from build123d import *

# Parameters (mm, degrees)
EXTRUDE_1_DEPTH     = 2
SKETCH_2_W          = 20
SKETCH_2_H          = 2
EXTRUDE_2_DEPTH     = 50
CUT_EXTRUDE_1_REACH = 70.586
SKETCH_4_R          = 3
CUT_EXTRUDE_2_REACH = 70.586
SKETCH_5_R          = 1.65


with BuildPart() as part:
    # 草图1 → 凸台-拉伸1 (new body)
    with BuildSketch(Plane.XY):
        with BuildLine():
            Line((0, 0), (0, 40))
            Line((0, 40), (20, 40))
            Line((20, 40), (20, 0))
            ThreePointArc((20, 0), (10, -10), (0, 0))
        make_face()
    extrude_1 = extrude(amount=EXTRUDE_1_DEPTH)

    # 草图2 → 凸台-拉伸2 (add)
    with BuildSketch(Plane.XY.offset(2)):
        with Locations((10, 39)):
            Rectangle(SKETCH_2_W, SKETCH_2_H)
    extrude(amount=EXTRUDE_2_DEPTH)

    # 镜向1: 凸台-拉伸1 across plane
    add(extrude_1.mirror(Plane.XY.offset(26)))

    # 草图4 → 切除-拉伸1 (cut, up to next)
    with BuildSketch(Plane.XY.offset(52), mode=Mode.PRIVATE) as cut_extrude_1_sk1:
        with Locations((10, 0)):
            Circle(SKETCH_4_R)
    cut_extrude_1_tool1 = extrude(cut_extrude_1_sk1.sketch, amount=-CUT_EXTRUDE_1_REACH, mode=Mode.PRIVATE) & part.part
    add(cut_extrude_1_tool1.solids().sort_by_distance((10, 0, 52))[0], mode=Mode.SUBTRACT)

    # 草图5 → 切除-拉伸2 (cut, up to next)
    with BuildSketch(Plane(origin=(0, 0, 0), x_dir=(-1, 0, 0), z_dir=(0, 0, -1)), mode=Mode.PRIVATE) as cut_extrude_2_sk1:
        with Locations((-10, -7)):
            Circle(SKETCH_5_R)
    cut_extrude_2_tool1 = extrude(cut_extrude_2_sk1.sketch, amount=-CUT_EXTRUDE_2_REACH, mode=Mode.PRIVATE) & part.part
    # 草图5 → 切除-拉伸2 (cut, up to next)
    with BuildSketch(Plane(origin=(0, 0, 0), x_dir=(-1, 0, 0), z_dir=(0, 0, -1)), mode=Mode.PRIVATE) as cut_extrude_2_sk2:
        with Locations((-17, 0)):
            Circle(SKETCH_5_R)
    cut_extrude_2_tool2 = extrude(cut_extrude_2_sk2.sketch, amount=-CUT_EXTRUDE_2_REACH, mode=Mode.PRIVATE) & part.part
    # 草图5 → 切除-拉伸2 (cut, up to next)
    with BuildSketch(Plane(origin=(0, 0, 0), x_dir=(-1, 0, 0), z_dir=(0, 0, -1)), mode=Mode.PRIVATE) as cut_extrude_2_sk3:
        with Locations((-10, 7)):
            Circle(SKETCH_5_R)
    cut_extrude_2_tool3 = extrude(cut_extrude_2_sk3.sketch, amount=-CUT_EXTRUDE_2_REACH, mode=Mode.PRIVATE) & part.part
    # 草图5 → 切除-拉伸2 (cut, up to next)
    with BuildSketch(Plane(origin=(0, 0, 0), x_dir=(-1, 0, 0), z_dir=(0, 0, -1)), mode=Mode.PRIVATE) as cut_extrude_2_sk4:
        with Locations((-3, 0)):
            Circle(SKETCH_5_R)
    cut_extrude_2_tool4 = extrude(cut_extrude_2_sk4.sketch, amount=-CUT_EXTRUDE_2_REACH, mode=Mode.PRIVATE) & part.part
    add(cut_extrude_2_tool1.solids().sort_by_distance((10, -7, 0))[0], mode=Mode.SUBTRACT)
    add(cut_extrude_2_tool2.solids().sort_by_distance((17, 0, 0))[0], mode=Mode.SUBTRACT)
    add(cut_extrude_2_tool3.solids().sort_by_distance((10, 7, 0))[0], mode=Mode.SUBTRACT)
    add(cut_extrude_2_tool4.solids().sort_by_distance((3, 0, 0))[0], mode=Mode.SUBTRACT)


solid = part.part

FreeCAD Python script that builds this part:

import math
import FreeCAD as App
import Part
import Sketcher
from FreeCAD import Vector


def add_polygon(sketch, points):
    """Adds a closed chain of lines whose ends are joined by coincident constraints."""
    first, n = sketch.GeometryCount, len(points)
    for a, b in zip(points, points[1:] + points[:1]):
        sketch.addGeometry(Part.LineSegment(App.Vector(*a, 0), App.Vector(*b, 0)), False)
    for i in range(n):
        sketch.addConstraint(Sketcher.Constraint("Coincident", first + i, 2, first + (i + 1) % n, 1))

doc = App.newDocument("Part")
body = doc.addObject("PartDesign::Body", "Body")

# Sketch on XY plane
sketch1 = doc.addObject("Sketcher::SketchObject", "Sketch")
body.addObject(sketch1)
sketch1.AttachmentSupport = (doc.XY_Plane, [""])
sketch1.MapMode = "FlatFace"
sketch1.addGeometry([
    Part.LineSegment(Vector(0, 40, 0), Vector(0, 0, 0)),
    Part.ArcOfCircle(Part.Circle(Vector(10, 0, 0), Vector(0, 0, 1), 10), math.radians(180), math.radians(360)),
    Part.LineSegment(Vector(20, 0, 0), Vector(20, 40, 0)),
    Part.LineSegment(Vector(20, 40, 0), Vector(0, 40, 0)),
], False)
sketch1.addConstraint([
    Sketcher.Constraint("Tangent", 0, 2, 1, 1),
    Sketcher.Constraint("Tangent", 1, 2, 2, 1),
    Sketcher.Constraint("Coincident", 2, 2, 3, 1),
    Sketcher.Constraint("Coincident", 3, 2, 0, 1),
    Sketcher.Constraint("Vertical", 0),
    Sketcher.Constraint("Vertical", 2),
    Sketcher.Constraint("Horizontal", 3),
    Sketcher.Constraint("Coincident", 0, 2, -1, 1),
    Sketcher.Constraint("Radius", 1, 10.0),
    Sketcher.Constraint("DistanceY", 0, 2, 0, 1, 40.0),
])
pad1 = doc.addObject("PartDesign::Pad", "Pad")
body.addObject(pad1)
pad1.Profile = sketch1
pad1.Length = 2

# Sketch on XY plane
sketch2 = doc.addObject("Sketcher::SketchObject", "Sketch001")
body.addObject(sketch2)
sketch2.AttachmentSupport = (doc.XY_Plane, [""])
sketch2.MapMode = "FlatFace"
sketch2.AttachmentOffset = App.Placement(Vector(0, 0, 2), App.Rotation())
add_polygon(sketch2, [(0, 40), (0, 38), (20, 38), (20, 40)])  # lines 0-3
sketch2.addConstraint([
    Sketcher.Constraint("Vertical", 0),
    Sketcher.Constraint("Horizontal", 1),
    Sketcher.Constraint("Vertical", 2),
    Sketcher.Constraint("Horizontal", 3),
    Sketcher.Constraint("PointOnObject", 0, 2, -2),
    Sketcher.Constraint("DistanceX", 1, 1, 1, 2, 20.0),
    Sketcher.Constraint("DistanceY", 0, 2, 0, 1, 2.0),
    Sketcher.Constraint("DistanceY", -1, 1, 0, 2, 38.0),
])
pad2 = doc.addObject("PartDesign::Pad", "Pad001")
body.addObject(pad2)
pad2.Profile = sketch2
pad2.Length = 50
doc.recompute()

datumplane = doc.addObject("PartDesign::Plane", "DatumPlane")
body.addObject(datumplane)
datumplane.AttachmentSupport = (doc.XY_Plane, [""])
datumplane.MapMode = "FlatFace"
datumplane.AttachmentOffset = App.Placement(Vector(0, 0, 26), App.Rotation())
mirrored = doc.addObject("PartDesign::Mirrored", "Mirrored")
body.addObject(mirrored)
mirrored.Originals = [pad1]
mirrored.MirrorPlane = (datumplane, [""])
body.Tip = mirrored

# Sketch on XY plane
sketch3 = doc.addObject("Sketcher::SketchObject", "Sketch002")
body.addObject(sketch3)
sketch3.AttachmentSupport = (doc.XY_Plane, [""])
sketch3.MapMode = "FlatFace"
sketch3.AttachmentOffset = App.Placement(Vector(0, 0, 52), App.Rotation())
sketch3.addGeometry(Part.Circle(Vector(10, 0, 0), Vector(0, 0, 1), 3), False)
sketch3.addConstraint([
    Sketcher.Constraint("PointOnObject", 0, 3, -1),
    Sketcher.Constraint("Diameter", 0, 6.0),
    Sketcher.Constraint("DistanceX", -1, 1, 0, 3, 10.0),
])
pocket1 = doc.addObject("PartDesign::Pocket", "Pocket")
body.addObject(pocket1)
pocket1.Profile = sketch3
pocket1.Type = "UpToFirst"

# Sketch on XY plane
sketch4 = doc.addObject("Sketcher::SketchObject", "Sketch003")
body.addObject(sketch4)
sketch4.AttachmentSupport = (doc.XY_Plane, [""])
sketch4.MapMode = "FlatFace"
sketch4.addGeometry(Part.Circle(Vector(10, -7, 0), Vector(0, 0, 1), 1.6), False)
sketch4.addConstraint([
    Sketcher.Constraint("Diameter", 0, 3.3),
    Sketcher.Constraint("DistanceX", -1, 1, 0, 3, 10.0),
    Sketcher.Constraint("DistanceY", 0, 3, -1, 1, 7.0),
])
pocket2 = doc.addObject("PartDesign::Pocket", "Pocket001")
body.addObject(pocket2)
pocket2.Profile = sketch4
pocket2.Type = "UpToFirst"
pocket2.Reversed = True

# Sketch on XY plane
sketch5 = doc.addObject("Sketcher::SketchObject", "Sketch004")
body.addObject(sketch5)
sketch5.AttachmentSupport = (doc.XY_Plane, [""])
sketch5.MapMode = "FlatFace"
sketch5.addGeometry(Part.Circle(Vector(17, 0, 0), Vector(0, 0, 1), 1.6), False)
sketch5.addConstraint([
    Sketcher.Constraint("PointOnObject", 0, 3, -1),
    Sketcher.Constraint("Diameter", 0, 3.3),
    Sketcher.Constraint("DistanceX", -1, 1, 0, 3, 17.0),
])
pocket3 = doc.addObject("PartDesign::Pocket", "Pocket002")
body.addObject(pocket3)
pocket3.Profile = sketch5
pocket3.Type = "UpToFirst"
pocket3.Reversed = True

# Sketch on XY plane
sketch6 = doc.addObject("Sketcher::SketchObject", "Sketch005")
body.addObject(sketch6)
sketch6.AttachmentSupport = (doc.XY_Plane, [""])
sketch6.MapMode = "FlatFace"
sketch6.addGeometry(Part.Circle(Vector(10, 7, 0), Vector(0, 0, 1), 1.6), False)
sketch6.addConstraint([
    Sketcher.Constraint("Diameter", 0, 3.3),
    Sketcher.Constraint("DistanceX", -1, 1, 0, 3, 10.0),
    Sketcher.Constraint("DistanceY", -1, 1, 0, 3, 7.0),
])
pocket4 = doc.addObject("PartDesign::Pocket", "Pocket003")
body.addObject(pocket4)
pocket4.Profile = sketch6
pocket4.Type = "UpToFirst"
pocket4.Reversed = True

# Sketch on XY plane
sketch7 = doc.addObject("Sketcher::SketchObject", "Sketch006")
body.addObject(sketch7)
sketch7.AttachmentSupport = (doc.XY_Plane, [""])
sketch7.MapMode = "FlatFace"
sketch7.addGeometry(Part.Circle(Vector(3, 0, 0), Vector(0, 0, 1), 1.6), False)
sketch7.addConstraint([
    Sketcher.Constraint("PointOnObject", 0, 3, -1),
    Sketcher.Constraint("Diameter", 0, 3.3),
    Sketcher.Constraint("DistanceX", -1, 1, 0, 3, 3.0),
])
pocket5 = doc.addObject("PartDesign::Pocket", "Pocket004")
body.addObject(pocket5)
pocket5.Profile = sketch7
pocket5.Type = "UpToFirst"
pocket5.Reversed = True

doc.recompute()
